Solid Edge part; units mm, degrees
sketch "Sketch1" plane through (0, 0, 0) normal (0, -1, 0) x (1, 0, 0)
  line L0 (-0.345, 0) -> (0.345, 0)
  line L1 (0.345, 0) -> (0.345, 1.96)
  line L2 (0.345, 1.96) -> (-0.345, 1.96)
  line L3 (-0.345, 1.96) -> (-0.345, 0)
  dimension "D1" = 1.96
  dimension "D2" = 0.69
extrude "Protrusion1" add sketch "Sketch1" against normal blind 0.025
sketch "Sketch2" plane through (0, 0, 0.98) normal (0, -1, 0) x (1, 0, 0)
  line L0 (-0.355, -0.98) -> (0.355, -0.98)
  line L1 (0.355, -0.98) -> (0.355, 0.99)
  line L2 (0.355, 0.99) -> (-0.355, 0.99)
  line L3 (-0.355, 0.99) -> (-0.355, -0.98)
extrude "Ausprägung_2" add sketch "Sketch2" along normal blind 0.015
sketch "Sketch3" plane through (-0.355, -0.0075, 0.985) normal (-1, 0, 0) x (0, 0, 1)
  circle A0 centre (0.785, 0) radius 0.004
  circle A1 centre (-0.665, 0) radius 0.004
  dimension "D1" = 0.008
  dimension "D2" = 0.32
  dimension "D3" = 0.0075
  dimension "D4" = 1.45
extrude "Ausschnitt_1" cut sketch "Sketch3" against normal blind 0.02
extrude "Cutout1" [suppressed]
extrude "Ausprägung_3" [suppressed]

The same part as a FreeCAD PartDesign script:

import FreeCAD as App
import Part
import Sketcher

V = App.Vector
Q = App.Units.Quantity


def add_polygon(sketch, points):
    """Adds a closed chain of lines whose ends are joined by coincident constraints."""
    first, n = sketch.GeometryCount, len(points)
    for a, b in zip(points, points[1:] + points[:1]):
        sketch.addGeometry(Part.LineSegment(App.Vector(*a, 0), App.Vector(*b, 0)), False)
    for i in range(n):
        sketch.addConstraint(Sketcher.Constraint("Coincident", first + i, 2, first + (i + 1) % n, 1))

doc = App.newDocument("Part")
body = doc.addObject("PartDesign::Body", "Body")

sketch1 = body.newObject("Sketcher::SketchObject", "Sketch")
sketch1.AttachmentSupport = (doc.getObject("XZ_Plane"), [""])
sketch1.MapMode = "FlatFace"
add_polygon(sketch1, [(-0.3, 2), (-0.3, 0), (0.3, 0), (0.3, 2)])
sketch1.addConstraint(Sketcher.Constraint("Vertical", 0))
sketch1.addConstraint(Sketcher.Constraint("Horizontal", 1))
sketch1.addConstraint(Sketcher.Constraint("Vertical", 2))
sketch1.addConstraint(Sketcher.Constraint("Horizontal", 3))
sketch1.addConstraint(Sketcher.Constraint("Symmetric", 0, 2, 1, 2, -1, 1))
sketch1.addConstraint(Sketcher.Constraint("DistanceX", 0, 2, -1, 1, Q("0.345 mm")))
sketch1.addConstraint(Sketcher.Constraint("DistanceY", 0, 2, 0, 1, Q("1.96 mm")))
pad1 = body.newObject("PartDesign::Pad", "Pad")
pad1.Profile = sketch1
pad1.Length = 0.025
pad1.Reversed = True

sketch2 = body.newObject("Sketcher::SketchObject", "Sketch001")
sketch2.AttachmentSupport = (doc.getObject("XZ_Plane"), [""])
sketch2.MapMode = "FlatFace"
add_polygon(sketch2, [(-0.4, 2), (-0.4, 0), (0.4, 0), (0.4, 2)])
sketch2.addConstraint(Sketcher.Constraint("Vertical", 0))
sketch2.addConstraint(Sketcher.Constraint("Horizontal", 1))
sketch2.addConstraint(Sketcher.Constraint("Vertical", 2))
sketch2.addConstraint(Sketcher.Constraint("Horizontal", 3))
sketch2.addConstraint(Sketcher.Constraint("Symmetric", 0, 2, 1, 2, -1, 1))
sketch2.addConstraint(Sketcher.Constraint("DistanceX", 1, 1, 1, 2, Q("0.71 mm")))
sketch2.addConstraint(Sketcher.Constraint("DistanceY", 0, 2, 0, 1, Q("1.97 mm")))
pad2 = body.newObject("PartDesign::Pad", "Pad001")
pad2.Profile = sketch2
pad2.Length = 0.015

sketch3 = body.newObject("Sketcher::SketchObject", "Sketch002")
sketch3.AttachmentSupport = (doc.getObject("YZ_Plane"), [""])
sketch3.MapMode = "FlatFace"
sketch3.AttachmentOffset = App.Placement(V(0, 0, -0.355), App.Rotation())
sketch3.addGeometry(Part.Circle(V(-0.0075, 1.77, 0), V(0, 0, 1), 0.004), False)
sketch3.addGeometry(Part.Circle(V(-0.0075, 0.32, 0), V(0, 0, 1), 0.004), False)
sketch3.addConstraint(Sketcher.Constraint("Equal", 0, 1))
sketch3.addConstraint(Sketcher.Constraint("Vertical", 0, 3, 1, 3))
sketch3.addConstraint(Sketcher.Constraint("Diameter", 0, Q("0.008 mm")))
sketch3.addConstraint(Sketcher.Constraint("DistanceY", -1, 1, 0, 3, Q("1.77 mm")))
sketch3.addConstraint(Sketcher.Constraint("DistanceY", -1, 1, 1, 3, Q("0.32 mm")))
sketch3.addConstraint(Sketcher.Constraint("DistanceX", 0, 3, -1, 1, Q("0.0075 mm")))
pocket1 = body.newObject("PartDesign::Pocket", "Pocket")
pocket1.Profile = sketch3
pocket1.Length = 0.02
pocket1.Reversed = True

doc.recompute()
